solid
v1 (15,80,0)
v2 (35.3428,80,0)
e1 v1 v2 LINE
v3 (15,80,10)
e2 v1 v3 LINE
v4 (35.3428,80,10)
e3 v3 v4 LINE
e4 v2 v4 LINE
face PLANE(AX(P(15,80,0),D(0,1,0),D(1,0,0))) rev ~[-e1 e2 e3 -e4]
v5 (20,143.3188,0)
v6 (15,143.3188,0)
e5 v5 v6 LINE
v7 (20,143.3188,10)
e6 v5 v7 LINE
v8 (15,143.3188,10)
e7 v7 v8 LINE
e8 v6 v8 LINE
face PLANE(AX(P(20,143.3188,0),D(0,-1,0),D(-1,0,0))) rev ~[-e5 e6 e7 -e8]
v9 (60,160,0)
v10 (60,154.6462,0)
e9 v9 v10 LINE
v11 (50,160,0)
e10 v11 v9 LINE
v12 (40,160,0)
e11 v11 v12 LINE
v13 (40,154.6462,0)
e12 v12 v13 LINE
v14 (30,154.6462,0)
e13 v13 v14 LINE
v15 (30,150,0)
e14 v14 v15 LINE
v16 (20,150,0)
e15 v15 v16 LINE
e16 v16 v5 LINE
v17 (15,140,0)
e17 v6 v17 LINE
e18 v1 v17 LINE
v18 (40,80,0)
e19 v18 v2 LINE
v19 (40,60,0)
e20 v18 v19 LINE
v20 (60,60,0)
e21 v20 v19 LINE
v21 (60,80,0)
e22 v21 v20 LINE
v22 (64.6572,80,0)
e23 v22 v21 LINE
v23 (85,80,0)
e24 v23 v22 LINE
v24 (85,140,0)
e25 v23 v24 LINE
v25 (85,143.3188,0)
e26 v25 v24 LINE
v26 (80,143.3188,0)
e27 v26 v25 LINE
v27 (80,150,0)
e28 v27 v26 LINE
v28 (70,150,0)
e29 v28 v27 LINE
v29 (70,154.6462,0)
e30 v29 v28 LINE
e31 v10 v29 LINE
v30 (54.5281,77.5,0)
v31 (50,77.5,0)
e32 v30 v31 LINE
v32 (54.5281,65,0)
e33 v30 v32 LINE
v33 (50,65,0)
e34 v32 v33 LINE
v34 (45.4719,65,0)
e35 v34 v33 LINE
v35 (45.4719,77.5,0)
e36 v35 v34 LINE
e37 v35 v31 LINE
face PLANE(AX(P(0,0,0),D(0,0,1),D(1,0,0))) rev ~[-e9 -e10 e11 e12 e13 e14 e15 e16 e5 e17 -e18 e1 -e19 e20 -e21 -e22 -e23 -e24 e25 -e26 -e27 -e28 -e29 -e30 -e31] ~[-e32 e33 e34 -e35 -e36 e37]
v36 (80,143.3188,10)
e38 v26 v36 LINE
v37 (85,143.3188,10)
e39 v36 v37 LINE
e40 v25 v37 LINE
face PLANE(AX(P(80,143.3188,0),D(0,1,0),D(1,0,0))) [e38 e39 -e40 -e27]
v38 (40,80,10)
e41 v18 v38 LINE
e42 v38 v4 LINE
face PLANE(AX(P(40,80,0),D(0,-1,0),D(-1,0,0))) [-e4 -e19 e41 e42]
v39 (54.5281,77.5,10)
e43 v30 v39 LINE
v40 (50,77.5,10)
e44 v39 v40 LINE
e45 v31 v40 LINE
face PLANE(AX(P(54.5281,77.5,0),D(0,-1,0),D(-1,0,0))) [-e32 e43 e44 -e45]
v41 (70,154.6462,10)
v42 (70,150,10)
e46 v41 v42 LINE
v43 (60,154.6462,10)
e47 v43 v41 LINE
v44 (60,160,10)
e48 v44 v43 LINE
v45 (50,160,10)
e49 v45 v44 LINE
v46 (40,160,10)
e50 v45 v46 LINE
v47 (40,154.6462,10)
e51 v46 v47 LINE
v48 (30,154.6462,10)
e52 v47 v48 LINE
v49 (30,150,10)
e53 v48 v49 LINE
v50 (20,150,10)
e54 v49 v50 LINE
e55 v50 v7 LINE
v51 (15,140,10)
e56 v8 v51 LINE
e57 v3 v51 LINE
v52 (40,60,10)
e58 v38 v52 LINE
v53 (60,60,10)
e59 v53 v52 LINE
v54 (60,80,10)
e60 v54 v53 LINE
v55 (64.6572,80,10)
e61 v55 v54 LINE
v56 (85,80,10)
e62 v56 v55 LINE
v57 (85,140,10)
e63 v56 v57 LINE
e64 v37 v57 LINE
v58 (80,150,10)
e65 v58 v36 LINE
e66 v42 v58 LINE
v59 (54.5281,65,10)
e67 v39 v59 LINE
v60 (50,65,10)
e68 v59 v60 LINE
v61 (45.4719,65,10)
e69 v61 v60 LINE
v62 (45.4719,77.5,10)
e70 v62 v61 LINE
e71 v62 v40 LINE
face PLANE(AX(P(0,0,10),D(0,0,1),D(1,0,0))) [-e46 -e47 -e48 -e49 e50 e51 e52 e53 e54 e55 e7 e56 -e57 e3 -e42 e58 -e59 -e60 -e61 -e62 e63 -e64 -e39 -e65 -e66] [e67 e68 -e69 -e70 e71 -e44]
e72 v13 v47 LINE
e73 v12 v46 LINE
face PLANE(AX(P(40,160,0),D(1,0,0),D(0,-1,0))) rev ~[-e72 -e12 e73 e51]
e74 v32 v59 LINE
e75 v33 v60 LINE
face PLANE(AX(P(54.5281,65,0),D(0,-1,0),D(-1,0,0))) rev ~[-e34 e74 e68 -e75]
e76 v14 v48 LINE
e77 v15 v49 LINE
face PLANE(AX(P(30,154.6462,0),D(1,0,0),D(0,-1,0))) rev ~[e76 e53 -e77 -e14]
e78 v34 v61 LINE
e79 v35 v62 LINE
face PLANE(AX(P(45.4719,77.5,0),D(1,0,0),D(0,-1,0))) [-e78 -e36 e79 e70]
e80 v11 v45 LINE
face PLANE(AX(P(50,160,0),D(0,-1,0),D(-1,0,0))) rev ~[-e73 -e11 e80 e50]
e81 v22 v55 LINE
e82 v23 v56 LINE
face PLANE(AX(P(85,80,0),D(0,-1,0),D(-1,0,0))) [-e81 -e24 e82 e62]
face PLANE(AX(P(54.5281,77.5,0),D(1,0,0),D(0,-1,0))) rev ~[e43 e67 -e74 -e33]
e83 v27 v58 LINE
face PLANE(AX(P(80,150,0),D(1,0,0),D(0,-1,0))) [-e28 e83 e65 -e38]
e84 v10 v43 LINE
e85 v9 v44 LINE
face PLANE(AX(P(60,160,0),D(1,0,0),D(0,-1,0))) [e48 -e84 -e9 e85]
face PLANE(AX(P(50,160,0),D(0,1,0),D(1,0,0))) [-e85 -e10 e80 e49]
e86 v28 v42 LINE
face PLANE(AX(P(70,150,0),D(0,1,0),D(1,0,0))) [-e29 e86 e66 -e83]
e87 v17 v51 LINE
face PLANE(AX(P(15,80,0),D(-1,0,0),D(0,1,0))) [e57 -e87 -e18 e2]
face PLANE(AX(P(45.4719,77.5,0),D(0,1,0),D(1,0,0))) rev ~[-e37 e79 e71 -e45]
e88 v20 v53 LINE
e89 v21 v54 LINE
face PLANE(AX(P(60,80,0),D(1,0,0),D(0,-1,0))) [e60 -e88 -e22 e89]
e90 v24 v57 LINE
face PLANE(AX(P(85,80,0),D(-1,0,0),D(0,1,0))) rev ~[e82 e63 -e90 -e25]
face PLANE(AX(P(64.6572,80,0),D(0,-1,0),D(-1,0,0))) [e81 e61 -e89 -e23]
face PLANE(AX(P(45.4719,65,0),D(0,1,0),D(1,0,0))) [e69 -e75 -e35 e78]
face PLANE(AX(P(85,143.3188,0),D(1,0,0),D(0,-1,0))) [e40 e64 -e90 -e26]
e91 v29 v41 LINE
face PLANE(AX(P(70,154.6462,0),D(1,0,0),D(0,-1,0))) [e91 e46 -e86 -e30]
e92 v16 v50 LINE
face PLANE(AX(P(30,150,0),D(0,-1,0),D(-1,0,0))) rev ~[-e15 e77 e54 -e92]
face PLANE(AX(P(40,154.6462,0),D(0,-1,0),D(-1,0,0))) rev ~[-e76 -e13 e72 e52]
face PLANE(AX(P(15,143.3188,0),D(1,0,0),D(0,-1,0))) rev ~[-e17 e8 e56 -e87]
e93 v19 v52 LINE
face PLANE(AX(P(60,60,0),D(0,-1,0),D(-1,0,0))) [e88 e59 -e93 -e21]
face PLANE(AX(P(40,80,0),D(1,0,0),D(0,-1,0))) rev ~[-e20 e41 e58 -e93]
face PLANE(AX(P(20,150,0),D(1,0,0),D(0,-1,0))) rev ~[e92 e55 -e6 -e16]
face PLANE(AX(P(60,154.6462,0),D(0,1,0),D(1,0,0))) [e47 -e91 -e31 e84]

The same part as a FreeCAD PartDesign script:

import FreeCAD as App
import Part
import Sketcher
from FreeCAD import Vector
Q = App.Units.Quantity

doc = App.newDocument("Part")
body = doc.addObject("PartDesign::Body", "Body")

# Sketch on XY plane
sketch1 = body.newObject("Sketcher::SketchObject", "Sketch")
sketch1.AttachmentSupport = (doc.getObject("XY_Plane"), [""])
sketch1.MapMode = "FlatFace"
sketch1.addGeometry(Part.LineSegment(Vector(40, 60, 0), Vector(60, 60, 0)), False)
sketch1.addGeometry(Part.LineSegment(Vector(60, 60, 0), Vector(60, 80, 0)), False)
sketch1.addGeometry(Part.LineSegment(Vector(60, 80, 0), Vector(85, 80, 0)), False)
sketch1.addGeometry(Part.LineSegment(Vector(85, 80, 0), Vector(85, 143.3188, 0)), False)
sketch1.addGeometry(Part.LineSegment(Vector(85, 143.3188, 0), Vector(80, 143.3188, 0)), False)
sketch1.addGeometry(Part.LineSegment(Vector(80, 143.3188, 0), Vector(80, 150, 0)), False)
sketch1.addGeometry(Part.LineSegment(Vector(80, 150, 0), Vector(70, 150, 0)), False)
sketch1.addGeometry(Part.LineSegment(Vector(70, 150, 0), Vector(70, 154.6462, 0)), False)
sketch1.addGeometry(Part.LineSegment(Vector(70, 154.6462, 0), Vector(60, 154.6462, 0)), False)
sketch1.addGeometry(Part.LineSegment(Vector(60, 154.6462, 0), Vector(60, 160, 0)), False)
sketch1.addGeometry(Part.LineSegment(Vector(60, 160, 0), Vector(40, 160, 0)), False)
sketch1.addGeometry(Part.LineSegment(Vector(40, 160, 0), Vector(40, 154.6462, 0)), False)
sketch1.addGeometry(Part.LineSegment(Vector(40, 154.6462, 0), Vector(30, 154.6462, 0)), False)
sketch1.addGeometry(Part.LineSegment(Vector(30, 154.6462, 0), Vector(30, 150, 0)), False)
sketch1.addGeometry(Part.LineSegment(Vector(30, 150, 0), Vector(20, 150, 0)), False)
sketch1.addGeometry(Part.LineSegment(Vector(20, 150, 0), Vector(20, 143.3188, 0)), False)
sketch1.addGeometry(Part.LineSegment(Vector(20, 143.3188, 0), Vector(15, 143.3188, 0)), False)
sketch1.addGeometry(Part.LineSegment(Vector(15, 143.3188, 0), Vector(15, 80, 0)), False)
sketch1.addGeometry(Part.LineSegment(Vector(15, 80, 0), Vector(40, 80, 0)), False)
sketch1.addGeometry(Part.LineSegment(Vector(40, 80, 0), Vector(40, 60, 0)), False)
sketch1.addGeometry(Part.LineSegment(Vector(45.4719, 77.5, 0), Vector(54.5281, 77.5, 0)), False)
sketch1.addGeometry(Part.LineSegment(Vector(54.5281, 77.5, 0), Vector(54.5281, 65, 0)), False)
sketch1.addGeometry(Part.LineSegment(Vector(54.5281, 65, 0), Vector(45.4719, 65, 0)), False)
sketch1.addGeometry(Part.LineSegment(Vector(45.4719, 65, 0), Vector(45.4719, 77.5, 0)), False)
sketch1.addConstraint(Sketcher.Constraint("Coincident", 0, 2, 1, 1))
sketch1.addConstraint(Sketcher.Constraint("Coincident", 1, 2, 2, 1))
sketch1.addConstraint(Sketcher.Constraint("Coincident", 2, 2, 3, 1))
sketch1.addConstraint(Sketcher.Constraint("Coincident", 3, 2, 4, 1))
sketch1.addConstraint(Sketcher.Constraint("Coincident", 4, 2, 5, 1))
sketch1.addConstraint(Sketcher.Constraint("Coincident", 5, 2, 6, 1))
sketch1.addConstraint(Sketcher.Constraint("Coincident", 6, 2, 7, 1))
sketch1.addConstraint(Sketcher.Constraint("Coincident", 7, 2, 8, 1))
sketch1.addConstraint(Sketcher.Constraint("Coincident", 8, 2, 9, 1))
sketch1.addConstraint(Sketcher.Constraint("Coincident", 9, 2, 10, 1))
sketch1.addConstraint(Sketcher.Constraint("Coincident", 10, 2, 11, 1))
sketch1.addConstraint(Sketcher.Constraint("Coincident", 11, 2, 12, 1))
sketch1.addConstraint(Sketcher.Constraint("Coincident", 12, 2, 13, 1))
sketch1.addConstraint(Sketcher.Constraint("Coincident", 13, 2, 14, 1))
sketch1.addConstraint(Sketcher.Constraint("Coincident", 14, 2, 15, 1))
sketch1.addConstraint(Sketcher.Constraint("Coincident", 15, 2, 16, 1))
sketch1.addConstraint(Sketcher.Constraint("Coincident", 16, 2, 17, 1))
sketch1.addConstraint(Sketcher.Constraint("Coincident", 17, 2, 18, 1))
sketch1.addConstraint(Sketcher.Constraint("Coincident", 18, 2, 19, 1))
sketch1.addConstraint(Sketcher.Constraint("Coincident", 19, 2, 0, 1))
sketch1.addConstraint(Sketcher.Constraint("Coincident", 20, 2, 21, 1))
sketch1.addConstraint(Sketcher.Constraint("Coincident", 21, 2, 22, 1))
sketch1.addConstraint(Sketcher.Constraint("Coincident", 22, 2, 23, 1))
sketch1.addConstraint(Sketcher.Constraint("Coincident", 23, 2, 20, 1))
sketch1.addConstraint(Sketcher.Constraint("Horizontal", 0))
sketch1.addConstraint(Sketcher.Constraint("Vertical", 1))
sketch1.addConstraint(Sketcher.Constraint("Horizontal", 2))
sketch1.addConstraint(Sketcher.Constraint("Vertical", 3))
sketch1.addConstraint(Sketcher.Constraint("Horizontal", 4))
sketch1.addConstraint(Sketcher.Constraint("Vertical", 5))
sketch1.addConstraint(Sketcher.Constraint("Horizontal", 6))
sketch1.addConstraint(Sketcher.Constraint("Vertical", 7))
sketch1.addConstraint(Sketcher.Constraint("Horizontal", 8))
sketch1.addConstraint(Sketcher.Constraint("Vertical", 9))
sketch1.addConstraint(Sketcher.Constraint("Horizontal", 10))
sketch1.addConstraint(Sketcher.Constraint("Vertical", 11))
sketch1.addConstraint(Sketcher.Constraint("Horizontal", 12))
sketch1.addConstraint(Sketcher.Constraint("Vertical", 13))
sketch1.addConstraint(Sketcher.Constraint("Horizontal", 14))
sketch1.addConstraint(Sketcher.Constraint("Vertical", 15))
sketch1.addConstraint(Sketcher.Constraint("Horizontal", 16))
sketch1.addConstraint(Sketcher.Constraint("Vertical", 17))
sketch1.addConstraint(Sketcher.Constraint("Horizontal", 18))
sketch1.addConstraint(Sketcher.Constraint("Vertical", 19))
sketch1.addConstraint(Sketcher.Constraint("Horizontal", 20))
sketch1.addConstraint(Sketcher.Constraint("Vertical", 21))
sketch1.addConstraint(Sketcher.Constraint("Horizontal", 22))
sketch1.addConstraint(Sketcher.Constraint("Vertical", 23))
sketch1.addConstraint(Sketcher.Constraint("Horizontal", 8, 2, 11, 2))
sketch1.addConstraint(Sketcher.Constraint("Horizontal", 6, 2, 13, 2))
sketch1.addConstraint(Sketcher.Constraint("Horizontal", 4, 2, 15, 2))
sketch1.addConstraint(Sketcher.Constraint("Horizontal", 2, 2, 17, 2))
sketch1.addConstraint(Sketcher.Constraint("Vertical", 1, 2, 8, 2))
sketch1.addConstraint(Sketcher.Constraint("Vertical", 11, 2, 18, 2))
sketch1.addConstraint(Sketcher.Constraint("Equal", 6, 8))
sketch1.addConstraint(Sketcher.Constraint("Equal", 8, 12))
sketch1.addConstraint(Sketcher.Constraint("Equal", 12, 14))
sketch1.addConstraint(Sketcher.Constraint("Equal", 4, 16))
sketch1.addConstraint(Sketcher.Constraint("Equal", 10, 1))
sketch1.addConstraint(Sketcher.Constraint("DistanceX", -1, 1, 0, 2, Q("60 mm")))
sketch1.addConstraint(Sketcher.Constraint("DistanceY", -1, 1, 0, 2, Q("60 mm")))
sketch1.addConstraint(Sketcher.Constraint("DistanceX", 0, 1, 0, 2, Q("20 mm")))
sketch1.addConstraint(Sketcher.Constraint("DistanceX", 2, 1, 2, 2, Q("25 mm")))
sketch1.addConstraint(Sketcher.Constraint("DistanceX", 4, 2, 4, 1, Q("5 mm")))
sketch1.addConstraint(Sketcher.Constraint("DistanceY", 21, 2, 21, 1, Q("12.5 mm")))
sketch1.addConstraint(Sketcher.Constraint("DistanceY", -1, 1, 5, 2, Q("150 mm")))
sketch1.addConstraint(Sketcher.Constraint("DistanceY", -1, 1, 9, 2, Q("160 mm")))
sketch1.addConstraint(Sketcher.Constraint("DistanceY", -1, 1, 21, 2, Q("65 mm")))
sketch1.addConstraint(Sketcher.Constraint("DistanceX", 20, 1, 20, 2, Q("9.0562 mm")))
sketch1.addConstraint(Sketcher.Constraint("DistanceY", 3, 1, 3, 2, Q("63.3188 mm")))
sketch1.addConstraint(Sketcher.Constraint("DistanceY", 7, 1, 7, 2, Q("4.6462 mm")))
sketch1.addConstraint(Sketcher.Constraint("DistanceX", -1, 1, 20, 2, Q("54.528 mm")))
pad1 = body.newObject("PartDesign::Pad", "Pad")
pad1.Profile = sketch1
pad1.Length = 10

doc.recompute()
